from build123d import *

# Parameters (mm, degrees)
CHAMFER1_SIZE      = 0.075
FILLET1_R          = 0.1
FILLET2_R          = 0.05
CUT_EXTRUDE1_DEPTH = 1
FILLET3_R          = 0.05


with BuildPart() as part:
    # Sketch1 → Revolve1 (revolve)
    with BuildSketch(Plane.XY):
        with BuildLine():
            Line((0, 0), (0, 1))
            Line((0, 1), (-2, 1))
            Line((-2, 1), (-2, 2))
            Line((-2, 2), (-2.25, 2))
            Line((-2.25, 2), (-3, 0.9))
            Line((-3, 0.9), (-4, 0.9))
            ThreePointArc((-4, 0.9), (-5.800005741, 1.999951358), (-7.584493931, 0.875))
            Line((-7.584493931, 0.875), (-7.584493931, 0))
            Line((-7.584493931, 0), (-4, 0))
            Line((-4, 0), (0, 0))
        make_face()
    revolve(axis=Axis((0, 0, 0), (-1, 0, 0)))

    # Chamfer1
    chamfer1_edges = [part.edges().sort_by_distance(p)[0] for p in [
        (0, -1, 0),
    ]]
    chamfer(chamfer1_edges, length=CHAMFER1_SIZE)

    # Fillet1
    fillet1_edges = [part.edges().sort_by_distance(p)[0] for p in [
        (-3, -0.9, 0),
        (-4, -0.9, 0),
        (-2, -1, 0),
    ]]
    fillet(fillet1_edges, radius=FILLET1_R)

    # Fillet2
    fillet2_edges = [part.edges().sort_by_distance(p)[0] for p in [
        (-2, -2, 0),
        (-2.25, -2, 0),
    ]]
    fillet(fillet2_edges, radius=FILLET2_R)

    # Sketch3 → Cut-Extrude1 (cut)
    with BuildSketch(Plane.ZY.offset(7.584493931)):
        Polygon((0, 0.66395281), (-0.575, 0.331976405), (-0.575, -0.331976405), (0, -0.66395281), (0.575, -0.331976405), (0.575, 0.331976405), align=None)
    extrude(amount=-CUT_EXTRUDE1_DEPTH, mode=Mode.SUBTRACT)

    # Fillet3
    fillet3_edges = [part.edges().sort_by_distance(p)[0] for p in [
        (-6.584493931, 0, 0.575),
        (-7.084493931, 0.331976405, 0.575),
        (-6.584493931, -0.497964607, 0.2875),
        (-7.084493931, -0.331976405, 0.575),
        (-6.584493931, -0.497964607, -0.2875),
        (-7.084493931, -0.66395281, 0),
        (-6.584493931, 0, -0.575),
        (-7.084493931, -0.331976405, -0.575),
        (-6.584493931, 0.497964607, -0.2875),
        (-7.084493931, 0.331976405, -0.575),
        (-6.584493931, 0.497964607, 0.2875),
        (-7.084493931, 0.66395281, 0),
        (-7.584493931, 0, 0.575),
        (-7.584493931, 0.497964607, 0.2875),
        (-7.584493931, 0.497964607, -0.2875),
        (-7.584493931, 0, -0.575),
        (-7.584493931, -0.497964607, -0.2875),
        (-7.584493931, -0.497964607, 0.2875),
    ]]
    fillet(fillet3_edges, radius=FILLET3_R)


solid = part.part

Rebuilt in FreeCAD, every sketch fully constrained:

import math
import FreeCAD as App
import Part
import Sketcher
Q = App.Units.Quantity


def edges_at(feature, points):
    """Names of the edges that pass closest to the given points."""
    edges = feature.Shape.Edges
    near = lambda p: min(range(len(edges)), key=lambda i: edges[i].distToShape(Part.Vertex(*p))[0])
    return sorted({f"Edge{near(p) + 1}" for p in points})

doc = App.newDocument("Part")
body = doc.addObject("PartDesign::Body", "Body")

sketch1 = body.newObject("Sketcher::SketchObject", "Sketch")
sketch1.AttachmentSupport = (doc.getObject("XY_Plane"), [""])
sketch1.MapMode = "FlatFace"
sketch1.addGeometry(Part.LineSegment(App.Vector(0, 0, 0), App.Vector(0, 1, 0)), False)
sketch1.addGeometry(Part.LineSegment(App.Vector(0, 1, 0), App.Vector(-2, 1, 0)), False)
sketch1.addGeometry(Part.LineSegment(App.Vector(-2, 1, 0), App.Vector(-2, 2, 0)), False)
sketch1.addGeometry(Part.LineSegment(App.Vector(-2, 2, 0), App.Vector(-2.25, 2, 0)), False)
sketch1.addGeometry(Part.LineSegment(App.Vector(-2.25, 2, 0), App.Vector(-3, 0.9, 0)), False)
sketch1.addGeometry(Part.LineSegment(App.Vector(-3, 0.9, 0), App.Vector(-4, 0.9, 0)), False)
sketch1.addGeometry(Part.ArcOfCircle(Part.Circle(App.Vector(-5.79, 0, 0), App.Vector(0, 0, 1), 2), math.radians(27), math.radians(154)), False)
sketch1.addGeometry(Part.LineSegment(App.Vector(-7.58, 0.88, 0), App.Vector(-7.58, 0, 0)), False)
sketch1.addGeometry(Part.LineSegment(App.Vector(-7.58, 0, 0), App.Vector(0, 0, 0)), False)
sketch1.addConstraint(Sketcher.Constraint("Coincident", 0, 2, 1, 1))
sketch1.addConstraint(Sketcher.Constraint("Coincident", 1, 2, 2, 1))
sketch1.addConstraint(Sketcher.Constraint("Coincident", 2, 2, 3, 1))
sketch1.addConstraint(Sketcher.Constraint("Coincident", 3, 2, 4, 1))
sketch1.addConstraint(Sketcher.Constraint("Coincident", 4, 2, 5, 1))
sketch1.addConstraint(Sketcher.Constraint("Coincident", 5, 2, 6, 1))
sketch1.addConstraint(Sketcher.Constraint("Coincident", 6, 2, 7, 1))
sketch1.addConstraint(Sketcher.Constraint("Coincident", 7, 2, 8, 1))
sketch1.addConstraint(Sketcher.Constraint("Coincident", 8, 2, 0, 1))
sketch1.addConstraint(Sketcher.Constraint("Vertical", 0))
sketch1.addConstraint(Sketcher.Constraint("Horizontal", 1))
sketch1.addConstraint(Sketcher.Constraint("Vertical", 2))
sketch1.addConstraint(Sketcher.Constraint("Horizontal", 3))
sketch1.addConstraint(Sketcher.Constraint("Horizontal", 5))
sketch1.addConstraint(Sketcher.Constraint("Vertical", 7))
sketch1.addConstraint(Sketcher.Constraint("Horizontal", 8))
sketch1.addConstraint(Sketcher.Constraint("Coincident", 8, 2, -1, 1))
sketch1.addConstraint(Sketcher.Constraint("PointOnObject", 6, 3, -1))
sketch1.addConstraint(Sketcher.Constraint("Equal", 5, 0))
sketch1.addConstraint(Sketcher.Constraint("Equal", 0, 2))
sketch1.addConstraint(Sketcher.Constraint("Radius", 6, 2.0))
sketch1.addConstraint(Sketcher.Constraint("DistanceX", 1, 2, 1, 1, 2.0))
sketch1.addConstraint(Sketcher.Constraint("DistanceX", 5, 2, 5, 1, 1.0))
sketch1.addConstraint(Sketcher.Constraint("DistanceX", 4, 2, -1, 1, 3.0))
sketch1.addConstraint(Sketcher.Constraint("DistanceX", 3, 2, 3, 1, 0.25))
sketch1.addConstraint(Sketcher.Constraint("DistanceY", -1, 1, 4, 2, 0.9))
sketch1.addConstraint(Sketcher.Constraint("DistanceY", 7, 2, 7, 1, 0.875))
revolution = body.newObject("PartDesign::Revolution", "Revolution")
revolution.Profile = sketch1
revolution.ReferenceAxis = (sketch1, ["H_Axis"])
revolution.Angle = 360
doc.recompute()

chamfer = body.newObject("PartDesign::Chamfer", "Chamfer")
chamfer.Base = (revolution, edges_at(revolution, [(0, -1, 0)]))
chamfer.Size = 0.075
doc.recompute()

fillet = body.newObject("PartDesign::Fillet", "Fillet")
fillet.Base = (chamfer, edges_at(chamfer, [(-3, -0.9, 0), (-4, -0.9, 0), (-2, -1, 0)]))
fillet.Radius = 0.1
doc.recompute()

fillet2 = body.newObject("PartDesign::Fillet", "Fillet001")
fillet2.Base = (fillet, edges_at(fillet, [(-2, -2, 0), (-2.25, -2, 0)]))
fillet2.Radius = 0.05

sketch2 = body.newObject("Sketcher::SketchObject", "Sketch001")
sketch2.AttachmentSupport = (doc.getObject("YZ_Plane"), [""])
sketch2.MapMode = "FlatFace"
sketch2.AttachmentOffset = App.Placement(App.Vector(0, 0, -7.584494), App.Rotation())
sketch2.addGeometry(Part.LineSegment(App.Vector(0.7, 0, 0), App.Vector(0.3, -0.6, 0)), False)
sketch2.addGeometry(Part.LineSegment(App.Vector(0.3, -0.6, 0), App.Vector(-0.3, -0.6, 0)), False)
sketch2.addGeometry(Part.LineSegment(App.Vector(-0.3, -0.6, 0), App.Vector(-0.7, 0, 0)), False)
sketch2.addGeometry(Part.LineSegment(App.Vector(-0.7, 0, 0), App.Vector(-0.3, 0.6, 0)), False)
sketch2.addGeometry(Part.LineSegment(App.Vector(-0.3, 0.6, 0), App.Vector(0.3, 0.6, 0)), False)
sketch2.addGeometry(Part.LineSegment(App.Vector(0.3, 0.6, 0), App.Vector(0.7, 0, 0)), False)
sketch2.addConstraint(Sketcher.Constraint("Coincident", 0, 2, 1, 1))
sketch2.addConstraint(Sketcher.Constraint("Coincident", 1, 2, 2, 1))
sketch2.addConstraint(Sketcher.Constraint("Coincident", 2, 2, 3, 1))
sketch2.addConstraint(Sketcher.Constraint("Coincident", 3, 2, 4, 1))
sketch2.addConstraint(Sketcher.Constraint("Coincident", 4, 2, 5, 1))
sketch2.addConstraint(Sketcher.Constraint("Coincident", 5, 2, 0, 1))
sketch2.addConstraint(Sketcher.Constraint("Horizontal", 1))
sketch2.addConstraint(Sketcher.Constraint("Horizontal", 4))
sketch2.addConstraint(Sketcher.Constraint("Symmetric", 0, 2, 3, 2, -1, 1))
sketch2.addConstraint(Sketcher.Constraint("Symmetric", 2, 2, 5, 2, -1, 1))
sketch2.addConstraint(Sketcher.Constraint("PointOnObject", 2, 2, -1))
sketch2.addConstraint(Sketcher.Constraint("Parallel", 2, 5))
sketch2.addConstraint(Sketcher.Constraint("Vertical", 1, 2, 3, 2))
sketch2.addConstraint(Sketcher.Constraint("Angle", 0, Q("-120 deg")))
sketch2.addConstraint(Sketcher.Constraint("DistanceY", 1, 2, 3, 2, 1.15))
sketch2.addConstraint(Sketcher.Constraint("DistanceX", 1, 2, 1, 1, 0.663953))
pocket1 = body.newObject("PartDesign::Pocket", "Pocket")
pocket1.Profile = sketch2
pocket1.Length = 1
pocket1.Reversed = True
doc.recompute()

fillet3 = body.newObject("PartDesign::Fillet", "Fillet002")
fillet3.Base = (pocket1, edges_at(pocket1, [
    (-6.584, 0, 0.575),
    (-7.084, 0.332, 0.575),
    (-6.584, -0.498, 0.287),
    (-7.084, -0.332, 0.575),
    (-6.584, -0.498, -0.287),
    (-7.084, -0.664, 0),
    (-6.584, 0, -0.575),
    (-7.084, -0.332, -0.575),
    (-6.584, 0.498, -0.287),
    (-7.084, 0.332, -0.575),
    (-6.584, 0.498, 0.287),
    (-7.084, 0.664, 0),
    (-7.584, 0, 0.575),
    (-7.584, 0.498, 0.287),
    (-7.584, 0.498, -0.287),
    (-7.584, 0, -0.575),
    (-7.584, -0.498, -0.287),
    (-7.584, -0.498, 0.287),
]))
fillet3.Radius = 0.05

doc.recompute()
